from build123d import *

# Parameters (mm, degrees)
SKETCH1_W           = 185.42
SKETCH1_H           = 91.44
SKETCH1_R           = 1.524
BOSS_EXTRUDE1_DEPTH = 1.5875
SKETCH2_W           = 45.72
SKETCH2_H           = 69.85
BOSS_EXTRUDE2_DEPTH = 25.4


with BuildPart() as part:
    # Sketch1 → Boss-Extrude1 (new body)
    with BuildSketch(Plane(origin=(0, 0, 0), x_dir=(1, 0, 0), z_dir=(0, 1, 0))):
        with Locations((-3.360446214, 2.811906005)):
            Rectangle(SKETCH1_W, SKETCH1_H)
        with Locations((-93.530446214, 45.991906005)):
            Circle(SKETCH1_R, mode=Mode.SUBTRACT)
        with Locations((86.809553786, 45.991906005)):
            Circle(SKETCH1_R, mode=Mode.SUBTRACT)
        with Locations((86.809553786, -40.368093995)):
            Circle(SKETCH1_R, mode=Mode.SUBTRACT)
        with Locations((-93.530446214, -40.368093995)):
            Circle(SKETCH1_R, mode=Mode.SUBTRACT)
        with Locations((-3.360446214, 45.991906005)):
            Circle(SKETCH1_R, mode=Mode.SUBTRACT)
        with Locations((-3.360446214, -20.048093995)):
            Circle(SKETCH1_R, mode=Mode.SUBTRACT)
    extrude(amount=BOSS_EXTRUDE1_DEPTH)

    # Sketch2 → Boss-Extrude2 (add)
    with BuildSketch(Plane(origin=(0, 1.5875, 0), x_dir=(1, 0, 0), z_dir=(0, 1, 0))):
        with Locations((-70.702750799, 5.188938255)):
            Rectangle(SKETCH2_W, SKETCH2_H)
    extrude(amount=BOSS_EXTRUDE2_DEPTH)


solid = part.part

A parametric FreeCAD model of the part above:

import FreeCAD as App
import Part
import Sketcher
Q = App.Units.Quantity


def add_polygon(sketch, points):
    """Adds a closed chain of lines whose ends are joined by coincident constraints."""
    first, n = sketch.GeometryCount, len(points)
    for a, b in zip(points, points[1:] + points[:1]):
        sketch.addGeometry(Part.LineSegment(App.Vector(*a, 0), App.Vector(*b, 0)), False)
    for i in range(n):
        sketch.addConstraint(Sketcher.Constraint("Coincident", first + i, 2, first + (i + 1) % n, 1))

doc = App.newDocument("Part")
params = doc.addObject("Spreadsheet::Sheet", "Params")
for row, (alias, value) in enumerate([
    ("sketch1_diameter", "0.12 in"),
    ("sketch1_width", "7.3 in"),
    ("sketch1_height", "3.6 in"),
    ("pad1_length", "0.0625 in"),
    ("sketch2_width", "1.8 in"),
    ("sketch2_height", "2.75 in"),
    ("pad2_length", "1 in"),
], start=1):
    params.set(f"A{row}", alias)
    params.set(f"B{row}", "=" + value)
    params.setAlias(f"B{row}", alias)

body = doc.addObject("PartDesign::Body", "Body")

# Sketch on XZ plane
sketch1 = doc.addObject("Sketcher::SketchObject", "Sketch")
body.addObject(sketch1)
sketch1.AttachmentSupport = (doc.XZ_Plane, [""])
sketch1.MapMode = "FlatFace"
add_polygon(sketch1, [(-96.1, -48.5), (-96.1, 42.9), (89.3, 42.9), (89.3, -48.5)])  # lines 0-3
sketch1.addGeometry(Part.Circle(App.Vector(-93.5, 40.4, 0), App.Vector(0, 0, 1), 1.5), False)  # 4
sketch1.addGeometry(Part.Circle(App.Vector(-3.4, 20, 0), App.Vector(0, 0, 1), 1.5), False)  # 5
sketch1.addGeometry(Part.Circle(App.Vector(86.8, 40.4, 0), App.Vector(0, 0, 1), 1.5), False)  # 6
sketch1.addGeometry(Part.Circle(App.Vector(-93.5, -46, 0), App.Vector(0, 0, 1), 1.5), False)  # 7
sketch1.addGeometry(Part.Circle(App.Vector(-3.4, -46, 0), App.Vector(0, 0, 1), 1.5), False)  # 8
sketch1.addGeometry(Part.Circle(App.Vector(86.8, -46, 0), App.Vector(0, 0, 1), 1.5), False)  # 9
sketch1.addConstraint([
    Sketcher.Constraint("Vertical", 0),
    Sketcher.Constraint("Horizontal", 1),
    Sketcher.Constraint("Vertical", 2),
    Sketcher.Constraint("Horizontal", 3),
    Sketcher.Constraint("Equal", 4, 5),
    Sketcher.Constraint("Equal", 5, 6),
    Sketcher.Constraint("Equal", 6, 7),
    Sketcher.Constraint("Equal", 7, 8),
    Sketcher.Constraint("Equal", 8, 9),
    Sketcher.Constraint("Horizontal", 4, 3, 6, 3),
    Sketcher.Constraint("Horizontal", 7, 3, 8, 3),
    Sketcher.Constraint("Horizontal", 8, 3, 9, 3),
    Sketcher.Constraint("Vertical", 4, 3, 7, 3),
    Sketcher.Constraint("Vertical", 5, 3, 8, 3),
    Sketcher.Constraint("Vertical", 6, 3, 9, 3),
    Sketcher.Constraint("Diameter", 4, Q("0.12 in")),
    Sketcher.Constraint("DistanceX", 1, 1, 1, 2, Q("7.3 in")),
    Sketcher.Constraint("DistanceY", 0, 1, 0, 2, Q("3.6 in")),
    Sketcher.Constraint("DistanceY", 5, 3, 4, 3, Q("0.8 in")),
    Sketcher.Constraint("DistanceX", 4, 3, 6, 3, Q("7.1 in")),
    Sketcher.Constraint("DistanceY", 7, 3, 4, 3, Q("3.4 in")),
    Sketcher.Constraint("DistanceX", 0, 2, 4, 3, Q("0.1 in")),
    Sketcher.Constraint("DistanceY", 4, 3, 0, 2, Q("0.1 in")),
    Sketcher.Constraint("DistanceX", 4, 3, 5, 3, Q("3.55 in")),
    Sketcher.Constraint("DistanceX", 4, 3, -1, 1, Q("93.530446 mm")),
    Sketcher.Constraint("DistanceY", -1, 1, 4, 3, Q("40.368094 mm")),
])
sketch1.setExpression("Constraints[19]", "Params.sketch1_diameter")
sketch1.setExpression("Constraints[20]", "Params.sketch1_width")
sketch1.setExpression("Constraints[21]", "Params.sketch1_height")
pad1 = doc.addObject("PartDesign::Pad", "Pad")
body.addObject(pad1)
pad1.Profile = sketch1
pad1.setExpression("Length", "Params.pad1_length")
pad1.Reversed = True

# Sketch on XZ plane
sketch2 = doc.addObject("Sketcher::SketchObject", "Sketch001")
body.addObject(sketch2)
sketch2.AttachmentSupport = (doc.XZ_Plane, [""])
sketch2.MapMode = "FlatFace"
sketch2.AttachmentOffset = App.Placement(App.Vector(0, 0, -0.0625 * 25.4), App.Rotation())
add_polygon(sketch2, [(-94, -40), (-94, 30), (-48, 30), (-48, -40)])  # lines 0-3
sketch2.addConstraint([
    Sketcher.Constraint("Vertical", 0),
    Sketcher.Constraint("Horizontal", 1),
    Sketcher.Constraint("Vertical", 2),
    Sketcher.Constraint("Horizontal", 3),
    Sketcher.Constraint("DistanceX", 1, 1, 1, 2, Q("1.8 in")),
    Sketcher.Constraint("DistanceY", 0, 1, 0, 2, Q("2.75 in")),
    Sketcher.Constraint("DistanceX", 0, 2, -1, 1, Q("93.562751 mm")),
    Sketcher.Constraint("DistanceY", -1, 1, 0, 2, Q("29.736062 mm")),
])
sketch2.setExpression("Constraints[8]", "Params.sketch2_width")
sketch2.setExpression("Constraints[9]", "Params.sketch2_height")
pad2 = doc.addObject("PartDesign::Pad", "Pad001")
body.addObject(pad2)
pad2.Profile = sketch2
pad2.setExpression("Length", "Params.pad2_length")
pad2.Reversed = True

doc.recompute()
